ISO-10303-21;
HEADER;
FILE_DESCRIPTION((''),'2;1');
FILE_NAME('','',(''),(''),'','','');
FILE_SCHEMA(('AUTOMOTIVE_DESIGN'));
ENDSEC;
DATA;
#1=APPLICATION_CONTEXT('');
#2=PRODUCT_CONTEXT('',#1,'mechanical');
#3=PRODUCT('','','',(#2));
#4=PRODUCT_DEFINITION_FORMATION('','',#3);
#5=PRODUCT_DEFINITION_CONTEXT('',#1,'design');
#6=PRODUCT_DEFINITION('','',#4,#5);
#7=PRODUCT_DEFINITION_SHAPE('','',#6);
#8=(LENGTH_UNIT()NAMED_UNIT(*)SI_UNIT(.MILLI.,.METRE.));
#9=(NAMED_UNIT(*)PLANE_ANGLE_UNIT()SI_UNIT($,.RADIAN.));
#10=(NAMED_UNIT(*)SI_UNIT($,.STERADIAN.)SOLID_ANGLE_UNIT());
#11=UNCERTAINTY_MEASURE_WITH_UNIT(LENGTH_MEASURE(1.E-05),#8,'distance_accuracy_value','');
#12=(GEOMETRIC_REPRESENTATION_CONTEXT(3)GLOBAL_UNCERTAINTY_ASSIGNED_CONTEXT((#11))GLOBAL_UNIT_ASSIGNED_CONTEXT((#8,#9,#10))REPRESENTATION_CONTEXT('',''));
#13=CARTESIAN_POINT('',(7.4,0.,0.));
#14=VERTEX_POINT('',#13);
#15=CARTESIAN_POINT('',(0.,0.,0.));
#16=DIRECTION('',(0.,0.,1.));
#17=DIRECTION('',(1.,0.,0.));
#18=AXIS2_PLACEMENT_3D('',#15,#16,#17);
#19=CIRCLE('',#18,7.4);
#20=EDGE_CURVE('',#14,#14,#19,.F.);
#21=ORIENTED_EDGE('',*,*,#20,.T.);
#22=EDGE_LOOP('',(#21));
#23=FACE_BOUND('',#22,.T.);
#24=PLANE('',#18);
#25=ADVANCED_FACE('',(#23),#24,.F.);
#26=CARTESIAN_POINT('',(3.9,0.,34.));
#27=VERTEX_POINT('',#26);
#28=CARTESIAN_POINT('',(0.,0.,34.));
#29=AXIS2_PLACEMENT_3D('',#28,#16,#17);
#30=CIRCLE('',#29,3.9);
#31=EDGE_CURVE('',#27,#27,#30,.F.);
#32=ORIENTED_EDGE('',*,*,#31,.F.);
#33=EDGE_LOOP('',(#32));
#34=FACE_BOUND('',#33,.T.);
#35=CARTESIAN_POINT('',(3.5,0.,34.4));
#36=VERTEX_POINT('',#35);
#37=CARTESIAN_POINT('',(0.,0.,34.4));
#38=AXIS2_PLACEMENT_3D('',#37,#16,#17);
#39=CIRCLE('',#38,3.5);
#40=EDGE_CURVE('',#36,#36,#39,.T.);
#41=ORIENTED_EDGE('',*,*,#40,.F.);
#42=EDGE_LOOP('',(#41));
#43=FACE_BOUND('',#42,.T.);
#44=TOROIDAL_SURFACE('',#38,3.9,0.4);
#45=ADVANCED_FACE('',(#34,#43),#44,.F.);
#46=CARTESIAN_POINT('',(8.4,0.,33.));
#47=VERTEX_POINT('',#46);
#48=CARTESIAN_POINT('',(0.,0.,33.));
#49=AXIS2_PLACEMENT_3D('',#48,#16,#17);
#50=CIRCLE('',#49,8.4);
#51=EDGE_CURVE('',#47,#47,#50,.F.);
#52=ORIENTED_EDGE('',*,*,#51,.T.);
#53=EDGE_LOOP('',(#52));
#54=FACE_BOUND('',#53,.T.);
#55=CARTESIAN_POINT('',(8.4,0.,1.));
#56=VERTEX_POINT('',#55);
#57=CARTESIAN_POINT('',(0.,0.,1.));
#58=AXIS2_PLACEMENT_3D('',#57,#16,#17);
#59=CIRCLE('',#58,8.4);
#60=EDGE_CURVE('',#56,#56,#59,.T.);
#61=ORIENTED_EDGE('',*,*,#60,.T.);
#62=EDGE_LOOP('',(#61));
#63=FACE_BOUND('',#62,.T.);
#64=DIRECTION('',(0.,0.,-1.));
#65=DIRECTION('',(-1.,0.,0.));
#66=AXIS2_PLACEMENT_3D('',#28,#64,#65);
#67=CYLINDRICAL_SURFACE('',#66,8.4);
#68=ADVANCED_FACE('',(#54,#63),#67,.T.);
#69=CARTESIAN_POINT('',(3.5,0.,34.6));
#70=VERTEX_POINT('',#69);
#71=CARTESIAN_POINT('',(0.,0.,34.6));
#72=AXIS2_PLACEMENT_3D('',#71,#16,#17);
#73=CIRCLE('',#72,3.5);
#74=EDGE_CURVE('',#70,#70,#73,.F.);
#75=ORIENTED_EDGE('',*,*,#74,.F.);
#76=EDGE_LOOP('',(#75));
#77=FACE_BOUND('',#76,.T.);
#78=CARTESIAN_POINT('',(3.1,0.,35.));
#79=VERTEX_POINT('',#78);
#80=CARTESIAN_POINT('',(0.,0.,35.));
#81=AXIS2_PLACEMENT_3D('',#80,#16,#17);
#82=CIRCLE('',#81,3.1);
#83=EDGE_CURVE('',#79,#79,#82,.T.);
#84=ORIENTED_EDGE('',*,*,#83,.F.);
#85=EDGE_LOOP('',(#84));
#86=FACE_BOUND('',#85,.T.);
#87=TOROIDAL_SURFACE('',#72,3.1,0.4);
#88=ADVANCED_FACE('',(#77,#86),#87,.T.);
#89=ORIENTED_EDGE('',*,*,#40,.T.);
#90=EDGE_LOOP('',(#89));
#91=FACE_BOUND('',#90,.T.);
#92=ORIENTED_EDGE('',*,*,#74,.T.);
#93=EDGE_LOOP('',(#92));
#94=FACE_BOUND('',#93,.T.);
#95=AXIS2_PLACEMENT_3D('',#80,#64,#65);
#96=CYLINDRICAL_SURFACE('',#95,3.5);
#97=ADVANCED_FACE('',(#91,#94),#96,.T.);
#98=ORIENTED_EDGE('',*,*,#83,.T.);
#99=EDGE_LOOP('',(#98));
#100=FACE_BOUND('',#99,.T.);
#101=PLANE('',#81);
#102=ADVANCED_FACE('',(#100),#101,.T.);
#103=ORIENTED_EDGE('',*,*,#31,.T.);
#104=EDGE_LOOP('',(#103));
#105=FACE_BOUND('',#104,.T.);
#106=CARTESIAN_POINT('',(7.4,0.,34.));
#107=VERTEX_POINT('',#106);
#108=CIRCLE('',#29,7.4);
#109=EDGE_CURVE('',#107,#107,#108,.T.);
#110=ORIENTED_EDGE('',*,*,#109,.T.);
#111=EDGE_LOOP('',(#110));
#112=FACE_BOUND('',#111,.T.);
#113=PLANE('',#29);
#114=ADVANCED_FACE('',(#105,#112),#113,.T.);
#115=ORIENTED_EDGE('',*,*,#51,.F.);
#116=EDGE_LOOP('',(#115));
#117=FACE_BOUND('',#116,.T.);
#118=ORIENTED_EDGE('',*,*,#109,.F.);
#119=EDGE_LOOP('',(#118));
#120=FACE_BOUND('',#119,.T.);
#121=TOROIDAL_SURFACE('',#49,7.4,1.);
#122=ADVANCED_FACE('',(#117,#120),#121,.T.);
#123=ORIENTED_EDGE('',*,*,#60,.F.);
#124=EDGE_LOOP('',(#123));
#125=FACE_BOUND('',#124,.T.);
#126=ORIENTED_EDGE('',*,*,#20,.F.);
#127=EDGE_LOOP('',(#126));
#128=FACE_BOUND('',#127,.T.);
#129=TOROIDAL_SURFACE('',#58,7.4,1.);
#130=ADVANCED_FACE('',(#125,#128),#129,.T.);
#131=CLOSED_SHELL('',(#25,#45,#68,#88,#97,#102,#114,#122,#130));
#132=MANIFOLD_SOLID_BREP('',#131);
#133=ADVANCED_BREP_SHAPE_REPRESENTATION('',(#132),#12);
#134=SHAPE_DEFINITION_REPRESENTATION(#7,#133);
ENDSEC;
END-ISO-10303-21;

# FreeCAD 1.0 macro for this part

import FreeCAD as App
import Part
import Sketcher
from FreeCAD import Vector
Q = App.Units.Quantity


def edges_at(feature, points):
    """Names of the edges that pass closest to the given points."""
    edges = feature.Shape.Edges
    near = lambda p: min(range(len(edges)), key=lambda i: edges[i].distToShape(Part.Vertex(*p))[0])
    return sorted({f"Edge{near(p) + 1}" for p in points})

doc = App.newDocument("Part")
params = doc.addObject("Spreadsheet::Sheet", "Params")
for row, (alias, value) in enumerate([
    ("sketch1_diameter", "16.8 mm"),
    ("pad1_length", "34 mm"),
    ("sketch2_diameter", "7 mm"),
    ("pad2_length", "1 mm"),
    ("fillet_radius", "1 mm"),
    ("fillet2_radius", "0.4 mm"),
], start=1):
    params.set(f"A{row}", alias)
    params.set(f"B{row}", "=" + value)
    params.setAlias(f"B{row}", alias)

body = doc.addObject("PartDesign::Body", "Body")

# Sketch on XY plane
sketch1 = body.newObject("Sketcher::SketchObject", "Sketch")
sketch1.AttachmentSupport = (doc.getObject("XY_Plane"), [""])
sketch1.MapMode = "FlatFace"
sketch1.addGeometry(Part.Circle(Vector(0, 0, 0), Vector(0, 0, 1), 8.4), False)
sketch1.addConstraint([
    Sketcher.Constraint("Coincident", 0, 3, -1, 1),
    Sketcher.Constraint("Diameter", 0, Q("16.8 mm")),
])
sketch1.setExpression("Constraints[1]", "Params.sketch1_diameter")
pad1 = body.newObject("PartDesign::Pad", "Pad")
pad1.Profile = sketch1
pad1.setExpression("Length", "Params.pad1_length")

# Sketch on XY plane
sketch2 = body.newObject("Sketcher::SketchObject", "Sketch001")
sketch2.AttachmentSupport = (doc.getObject("XY_Plane"), [""])
sketch2.MapMode = "FlatFace"
sketch2.AttachmentOffset = App.Placement(Vector(0, 0, 34), App.Rotation())
sketch2.addGeometry(Part.Circle(Vector(0, 0, 0), Vector(0, 0, 1), 3.5), False)
sketch2.addConstraint([
    Sketcher.Constraint("Coincident", 0, 3, -1, 1),
    Sketcher.Constraint("Diameter", 0, Q("7 mm")),
])
sketch2.setExpression("Constraints[1]", "Params.sketch2_diameter")
pad2 = body.newObject("PartDesign::Pad", "Pad001")
pad2.Profile = sketch2
pad2.setExpression("Length", "Params.pad2_length")
doc.recompute()

fillet = body.newObject("PartDesign::Fillet", "Fillet")
fillet.Base = (pad2, edges_at(pad2, [(-8.4, 0, 0), (-8.4, 0, 34)]))
fillet.setExpression("Radius", "Params.fillet_radius")
doc.recompute()

fillet2 = body.newObject("PartDesign::Fillet", "Fillet001")
fillet2.Base = (fillet, edges_at(fillet, [(-3.5, 0, 34), (-3.5, 0, 35)]))
fillet2.setExpression("Radius", "Params.fillet2_radius")

doc.recompute()
